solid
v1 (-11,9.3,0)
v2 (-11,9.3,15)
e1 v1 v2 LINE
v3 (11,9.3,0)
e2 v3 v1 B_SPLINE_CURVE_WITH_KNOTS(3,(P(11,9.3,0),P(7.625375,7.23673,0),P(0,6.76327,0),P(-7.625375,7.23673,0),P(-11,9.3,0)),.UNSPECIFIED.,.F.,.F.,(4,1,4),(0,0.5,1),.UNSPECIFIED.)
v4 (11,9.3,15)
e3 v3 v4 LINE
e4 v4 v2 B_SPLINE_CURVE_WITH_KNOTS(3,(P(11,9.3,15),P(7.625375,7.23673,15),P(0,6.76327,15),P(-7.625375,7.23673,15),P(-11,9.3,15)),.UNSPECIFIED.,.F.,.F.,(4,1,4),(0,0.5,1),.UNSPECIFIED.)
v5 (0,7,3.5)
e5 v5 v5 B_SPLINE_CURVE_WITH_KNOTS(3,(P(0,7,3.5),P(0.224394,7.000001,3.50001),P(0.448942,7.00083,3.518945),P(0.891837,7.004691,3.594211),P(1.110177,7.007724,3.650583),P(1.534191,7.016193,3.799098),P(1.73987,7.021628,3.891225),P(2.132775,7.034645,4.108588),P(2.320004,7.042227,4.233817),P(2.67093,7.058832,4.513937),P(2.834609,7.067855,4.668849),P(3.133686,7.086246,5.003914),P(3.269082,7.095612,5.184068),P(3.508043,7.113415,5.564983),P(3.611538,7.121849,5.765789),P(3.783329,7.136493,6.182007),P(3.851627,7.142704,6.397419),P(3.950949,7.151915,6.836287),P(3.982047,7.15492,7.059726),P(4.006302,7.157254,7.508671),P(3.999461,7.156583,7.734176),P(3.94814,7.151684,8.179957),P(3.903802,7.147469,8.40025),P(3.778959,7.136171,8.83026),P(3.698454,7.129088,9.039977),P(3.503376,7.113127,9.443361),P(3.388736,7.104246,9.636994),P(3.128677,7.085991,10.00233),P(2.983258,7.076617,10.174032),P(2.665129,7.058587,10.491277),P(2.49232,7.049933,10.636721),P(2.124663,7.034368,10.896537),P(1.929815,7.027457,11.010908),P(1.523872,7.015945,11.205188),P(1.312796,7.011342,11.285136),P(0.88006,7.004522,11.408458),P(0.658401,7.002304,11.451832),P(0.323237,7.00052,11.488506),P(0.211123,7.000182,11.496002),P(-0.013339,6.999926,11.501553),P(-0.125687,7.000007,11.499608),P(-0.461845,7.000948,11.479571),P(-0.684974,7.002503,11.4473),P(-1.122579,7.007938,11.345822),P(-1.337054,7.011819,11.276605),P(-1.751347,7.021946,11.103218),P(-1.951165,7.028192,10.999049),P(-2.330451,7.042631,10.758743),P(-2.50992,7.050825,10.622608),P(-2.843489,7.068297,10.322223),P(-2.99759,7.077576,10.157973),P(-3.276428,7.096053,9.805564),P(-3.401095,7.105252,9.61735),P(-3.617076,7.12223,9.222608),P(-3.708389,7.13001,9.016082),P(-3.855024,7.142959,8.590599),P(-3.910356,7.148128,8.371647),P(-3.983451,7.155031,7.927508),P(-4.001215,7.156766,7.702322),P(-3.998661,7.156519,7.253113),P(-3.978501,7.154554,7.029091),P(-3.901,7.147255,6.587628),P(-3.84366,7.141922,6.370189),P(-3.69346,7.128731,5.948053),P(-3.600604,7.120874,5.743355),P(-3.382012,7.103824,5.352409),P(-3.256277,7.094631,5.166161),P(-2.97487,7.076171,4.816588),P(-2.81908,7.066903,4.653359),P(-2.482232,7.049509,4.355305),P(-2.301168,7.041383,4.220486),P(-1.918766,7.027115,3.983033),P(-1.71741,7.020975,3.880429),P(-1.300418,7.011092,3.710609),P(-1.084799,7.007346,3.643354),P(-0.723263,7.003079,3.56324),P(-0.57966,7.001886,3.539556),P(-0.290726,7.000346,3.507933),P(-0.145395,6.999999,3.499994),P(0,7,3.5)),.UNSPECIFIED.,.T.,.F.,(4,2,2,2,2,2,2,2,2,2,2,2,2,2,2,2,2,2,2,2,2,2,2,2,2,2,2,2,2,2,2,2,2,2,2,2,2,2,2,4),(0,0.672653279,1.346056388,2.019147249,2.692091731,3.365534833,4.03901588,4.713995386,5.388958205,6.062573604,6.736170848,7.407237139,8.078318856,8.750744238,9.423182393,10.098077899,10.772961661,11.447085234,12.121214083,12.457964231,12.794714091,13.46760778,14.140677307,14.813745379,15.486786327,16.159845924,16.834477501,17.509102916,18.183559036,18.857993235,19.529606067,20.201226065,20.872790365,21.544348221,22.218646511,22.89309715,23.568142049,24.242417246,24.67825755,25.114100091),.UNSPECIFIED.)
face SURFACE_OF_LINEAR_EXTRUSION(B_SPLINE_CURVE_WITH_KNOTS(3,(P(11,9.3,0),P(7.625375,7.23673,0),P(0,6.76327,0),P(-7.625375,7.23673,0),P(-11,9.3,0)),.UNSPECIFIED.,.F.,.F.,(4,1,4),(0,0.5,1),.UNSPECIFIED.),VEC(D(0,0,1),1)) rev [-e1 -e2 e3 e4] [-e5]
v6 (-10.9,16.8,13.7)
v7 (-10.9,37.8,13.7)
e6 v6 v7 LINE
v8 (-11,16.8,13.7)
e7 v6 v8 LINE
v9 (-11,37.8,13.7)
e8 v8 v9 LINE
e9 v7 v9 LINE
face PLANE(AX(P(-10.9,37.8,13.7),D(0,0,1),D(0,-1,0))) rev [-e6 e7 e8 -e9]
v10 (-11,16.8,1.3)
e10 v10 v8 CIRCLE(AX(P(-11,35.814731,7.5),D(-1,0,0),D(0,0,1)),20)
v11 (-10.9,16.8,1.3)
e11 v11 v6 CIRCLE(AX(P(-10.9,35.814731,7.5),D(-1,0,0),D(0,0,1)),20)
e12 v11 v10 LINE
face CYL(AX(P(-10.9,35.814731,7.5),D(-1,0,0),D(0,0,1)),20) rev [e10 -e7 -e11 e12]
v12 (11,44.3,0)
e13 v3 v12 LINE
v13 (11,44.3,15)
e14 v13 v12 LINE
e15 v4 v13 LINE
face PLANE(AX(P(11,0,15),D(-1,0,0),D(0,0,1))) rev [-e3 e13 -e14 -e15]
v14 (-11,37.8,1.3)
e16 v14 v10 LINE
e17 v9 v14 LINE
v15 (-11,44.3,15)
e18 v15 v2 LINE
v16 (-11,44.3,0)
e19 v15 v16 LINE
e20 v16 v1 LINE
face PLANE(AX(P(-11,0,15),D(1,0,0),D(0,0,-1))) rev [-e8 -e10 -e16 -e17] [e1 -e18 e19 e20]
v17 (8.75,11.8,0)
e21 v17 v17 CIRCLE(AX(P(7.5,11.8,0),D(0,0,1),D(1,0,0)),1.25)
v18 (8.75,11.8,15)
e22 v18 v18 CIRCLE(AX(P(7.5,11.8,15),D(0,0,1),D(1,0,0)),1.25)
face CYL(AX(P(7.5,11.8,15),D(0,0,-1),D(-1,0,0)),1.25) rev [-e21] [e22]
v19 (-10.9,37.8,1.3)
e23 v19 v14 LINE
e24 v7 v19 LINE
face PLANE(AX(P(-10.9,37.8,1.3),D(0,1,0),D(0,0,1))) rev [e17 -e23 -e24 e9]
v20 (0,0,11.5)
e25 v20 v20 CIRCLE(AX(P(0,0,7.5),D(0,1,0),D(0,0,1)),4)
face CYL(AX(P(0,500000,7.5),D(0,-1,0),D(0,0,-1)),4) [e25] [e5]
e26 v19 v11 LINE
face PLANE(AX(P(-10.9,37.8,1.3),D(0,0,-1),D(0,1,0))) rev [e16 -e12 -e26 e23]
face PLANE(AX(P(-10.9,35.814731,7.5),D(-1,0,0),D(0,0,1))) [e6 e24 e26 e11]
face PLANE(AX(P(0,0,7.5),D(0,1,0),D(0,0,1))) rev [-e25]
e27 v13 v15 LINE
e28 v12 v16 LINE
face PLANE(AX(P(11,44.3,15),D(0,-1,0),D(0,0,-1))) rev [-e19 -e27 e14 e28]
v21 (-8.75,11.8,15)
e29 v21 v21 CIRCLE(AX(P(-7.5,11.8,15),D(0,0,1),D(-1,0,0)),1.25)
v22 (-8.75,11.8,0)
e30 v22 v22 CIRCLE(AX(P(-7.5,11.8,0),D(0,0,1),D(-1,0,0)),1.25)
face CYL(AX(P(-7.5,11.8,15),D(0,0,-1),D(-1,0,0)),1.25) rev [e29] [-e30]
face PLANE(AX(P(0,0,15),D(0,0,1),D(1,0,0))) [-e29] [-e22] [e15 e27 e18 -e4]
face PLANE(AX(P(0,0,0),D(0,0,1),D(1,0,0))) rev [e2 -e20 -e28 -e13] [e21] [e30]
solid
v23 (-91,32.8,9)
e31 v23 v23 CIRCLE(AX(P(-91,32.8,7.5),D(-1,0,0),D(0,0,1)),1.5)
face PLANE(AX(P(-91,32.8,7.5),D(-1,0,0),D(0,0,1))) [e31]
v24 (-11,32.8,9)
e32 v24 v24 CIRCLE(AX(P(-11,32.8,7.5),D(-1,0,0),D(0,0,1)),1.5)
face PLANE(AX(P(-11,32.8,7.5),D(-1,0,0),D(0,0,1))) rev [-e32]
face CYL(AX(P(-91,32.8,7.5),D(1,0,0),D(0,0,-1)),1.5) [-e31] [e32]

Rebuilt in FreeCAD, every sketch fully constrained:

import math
import FreeCAD as App
import Part
import Sketcher

V = App.Vector


def add_polygon(sketch, points):
    """Adds a closed chain of lines whose ends are joined by coincident constraints."""
    first, n = sketch.GeometryCount, len(points)
    for a, b in zip(points, points[1:] + points[:1]):
        sketch.addGeometry(Part.LineSegment(App.Vector(*a, 0), App.Vector(*b, 0)), False)
    for i in range(n):
        sketch.addConstraint(Sketcher.Constraint("Coincident", first + i, 2, first + (i + 1) % n, 1))

doc = App.newDocument("Part")
params = doc.addObject("Spreadsheet::Sheet", "Params")
for row, (alias, value) in enumerate([
    ("sketch1_diameter", "2.5 mm"),
    ("sketch1_width", "22 mm"),
    ("sketch1_height", "44.3 mm"),
    ("pad1_length", "15 mm"),
    ("sketch3_diameter", "8 mm"),
    ("sketch4_radius", "20 mm"),
    ("sketch4_width", "21 mm"),
    ("sketch4_height", "12.4 mm"),
    ("pocket2_length", "0.1 mm"),
    ("sketch5_diameter", "3 mm"),
    ("pad3_length", "80 mm"),
], start=1):
    params.set(f"A{row}", alias)
    params.set(f"B{row}", "=" + value)
    params.setAlias(f"B{row}", alias)

body = doc.addObject("PartDesign::Body", "Body")

# Sketch on XY plane
sketch1 = doc.addObject("Sketcher::SketchObject", "Sketch")
body.addObject(sketch1)
sketch1.AttachmentSupport = (doc.XY_Plane, [""])
sketch1.MapMode = "FlatFace"
add_polygon(sketch1, [(-11, 44.3), (-11, 0), (11, 0), (11, 44.3)])  # lines 0-3
sketch1.addGeometry(Part.Circle(V(-7.5, 11.8, 0), V(0, 0, 1), 1.2), False)  # 4
sketch1.addGeometry(Part.Circle(V(7.5, 11.8, 0), V(0, 0, 1), 1.2), False)  # 5
sketch1.addConstraint(Sketcher.Constraint("Vertical", 0))
sketch1.addConstraint(Sketcher.Constraint("Horizontal", 1))
sketch1.addConstraint(Sketcher.Constraint("Vertical", 2))
sketch1.addConstraint(Sketcher.Constraint("Horizontal", 3))
sketch1.addConstraint(Sketcher.Constraint("Equal", 4, 5))
sketch1.addConstraint(Sketcher.Constraint("Symmetric", 0, 2, 1, 2, -1, 1))
sketch1.addConstraint(Sketcher.Constraint("Symmetric", 4, 3, 5, 3, -2))
sketch1.addConstraint(Sketcher.Constraint("Diameter", 4, 2.5))
sketch1.addConstraint(Sketcher.Constraint("DistanceX", 1, 1, 1, 2, 22.0))
sketch1.addConstraint(Sketcher.Constraint("DistanceY", 0, 2, 0, 1, 44.3))
sketch1.addConstraint(Sketcher.Constraint("DistanceX", 4, 3, 5, 3, 15.0))
sketch1.addConstraint(Sketcher.Constraint("DistanceY", -1, 1, 4, 3, 11.8))
sketch1.setExpression("Constraints[11]", "Params.sketch1_diameter")
sketch1.setExpression("Constraints[12]", "Params.sketch1_width")
sketch1.setExpression("Constraints[13]", "Params.sketch1_height")
pad1 = doc.addObject("PartDesign::Pad", "Pad")
body.addObject(pad1)
pad1.Profile = sketch1
pad1.setExpression("Length", "Params.pad1_length")

# Sketch on XY plane
sketch2 = doc.addObject("Sketcher::SketchObject", "Sketch001")
body.addObject(sketch2)
sketch2.AttachmentSupport = (doc.XY_Plane, [""])
sketch2.MapMode = "FlatFace"
sketch2.AttachmentOffset = App.Placement(V(0, 0, 15), App.Rotation())
sketch2.addGeometry(Part.LineSegment(V(-11, 9.3, 0), V(-11, 0, 0)), False)
sketch2.addGeometry(Part.LineSegment(V(-11, 0, 0), V(11, 0, 0)), False)
sketch2.addGeometry(Part.LineSegment(V(11, 0, 0), V(11, 9.3, 0)), False)
sketch2.addGeometry(Part.BSplineCurve([V(-11, 9.3, 0), V(-7.625375, 7.23673, 0), V(0, 6.76327, 0), V(7.625375, 7.23673, 0), V(11, 9.3, 0)], [4, 1, 4], [0, 0.5, 1], False, 3, [1, 1, 1, 1, 1], False), False)
sketch2.addConstraint(Sketcher.Constraint("Block", 3))
sketch2.addConstraint(Sketcher.Constraint("Coincident", 0, 2, 1, 1))
sketch2.addConstraint(Sketcher.Constraint("Coincident", 1, 2, 2, 1))
sketch2.addConstraint(Sketcher.Constraint("Coincident", 2, 2, 3, 2))
sketch2.addConstraint(Sketcher.Constraint("Coincident", 3, 1, 0, 1))
sketch2.addConstraint(Sketcher.Constraint("Vertical", 0))
sketch2.addConstraint(Sketcher.Constraint("Horizontal", 1))
sketch2.addConstraint(Sketcher.Constraint("Vertical", 2))
sketch2.addConstraint(Sketcher.Constraint("PointOnObject", 0, 2, -1))
pocket1 = doc.addObject("PartDesign::Pocket", "Pocket")
body.addObject(pocket1)
pocket1.Profile = sketch2
pocket1.Type = "ThroughAll"

# Sketch on XZ plane
sketch3 = doc.addObject("Sketcher::SketchObject", "Sketch002")
body.addObject(sketch3)
sketch3.AttachmentSupport = (doc.XZ_Plane, [""])
sketch3.MapMode = "FlatFace"
sketch3.addGeometry(Part.Circle(V(0, 7.5, 0), V(0, 0, 1), 4), False)
sketch3.addConstraint(Sketcher.Constraint("PointOnObject", 0, 3, -2))
sketch3.addConstraint(Sketcher.Constraint("Diameter", 0, 8.0))
sketch3.addConstraint(Sketcher.Constraint("DistanceY", -1, 1, 0, 3, 7.5))
sketch3.setExpression("Constraints[1]", "Params.sketch3_diameter")
pad2 = doc.addObject("PartDesign::Pad", "Pad001")
body.addObject(pad2)
pad2.Profile = sketch3
pad2.Type = "UpToFirst"
pad2.Reversed = True

# Sketch on YZ plane
sketch4 = doc.addObject("Sketcher::SketchObject", "Sketch003")
body.addObject(sketch4)
sketch4.AttachmentSupport = (doc.YZ_Plane, [""])
sketch4.MapMode = "FlatFace"
sketch4.AttachmentOffset = App.Placement(V(0, 0, -11), App.Rotation())
sketch4.addGeometry(Part.LineSegment(V(38, 14, 0), V(38, 1, 0)), False)
sketch4.addGeometry(Part.LineSegment(V(38, 1, 0), V(17, 1, 0)), False)
sketch4.addGeometry(Part.ArcOfCircle(Part.Circle(V(36, 8, 0), V(0, 0, 1), 20), math.radians(162), math.radians(198)), False)
sketch4.addGeometry(Part.LineSegment(V(17, 14, 0), V(38, 14, 0)), False)
sketch4.addConstraint(Sketcher.Constraint("Coincident", 0, 2, 1, 1))
sketch4.addConstraint(Sketcher.Constraint("Coincident", 1, 2, 2, 2))
sketch4.addConstraint(Sketcher.Constraint("Coincident", 2, 1, 3, 1))
sketch4.addConstraint(Sketcher.Constraint("Coincident", 3, 2, 0, 1))
sketch4.addConstraint(Sketcher.Constraint("Vertical", 0))
sketch4.addConstraint(Sketcher.Constraint("Horizontal", 1))
sketch4.addConstraint(Sketcher.Constraint("Horizontal", 3))
sketch4.addConstraint(Sketcher.Constraint("Vertical", 1, 2, 2, 1))
sketch4.addConstraint(Sketcher.Constraint("Radius", 2, 20.0))
sketch4.addConstraint(Sketcher.Constraint("DistanceX", 1, 2, 1, 1, 21.0))
sketch4.addConstraint(Sketcher.Constraint("DistanceY", 0, 2, 0, 1, 12.4))
sketch4.addConstraint(Sketcher.Constraint("DistanceY", -1, 1, 2, 3, 7.5))
sketch4.addConstraint(Sketcher.Constraint("DistanceX", -1, 1, 0, 2, 37.8))
sketch4.setExpression("Constraints[8]", "Params.sketch4_radius")
sketch4.setExpression("Constraints[9]", "Params.sketch4_width")
sketch4.setExpression("Constraints[10]", "Params.sketch4_height")
pocket2 = doc.addObject("PartDesign::Pocket", "Pocket001")
body.addObject(pocket2)
pocket2.Profile = sketch4
pocket2.setExpression("Length", "Params.pocket2_length")
pocket2.Reversed = True
body2 = doc.addObject("PartDesign::Body", "Body001")

# Sketch on YZ plane
sketch5 = doc.addObject("Sketcher::SketchObject", "Sketch004")
body2.addObject(sketch5)
sketch5.AttachmentSupport = (doc.getObject("YZ_Plane001"), [""])
sketch5.MapMode = "FlatFace"
sketch5.AttachmentOffset = App.Placement(V(0, 0, -11), App.Rotation())
sketch5.addGeometry(Part.Circle(V(32.8, 7.5, 0), V(0, 0, 1), 1.5), False)
sketch5.addConstraint(Sketcher.Constraint("Diameter", 0, 3.0))
sketch5.addConstraint(Sketcher.Constraint("DistanceX", -1, 1, 0, 3, 32.8))
sketch5.addConstraint(Sketcher.Constraint("DistanceY", -1, 1, 0, 3, 7.5))
sketch5.setExpression("Constraints[0]", "Params.sketch5_diameter")
pad3 = doc.addObject("PartDesign::Pad", "Pad002")
body2.addObject(pad3)
pad3.Profile = sketch5
pad3.setExpression("Length", "Params.pad3_length")
pad3.Reversed = True

doc.recompute()
